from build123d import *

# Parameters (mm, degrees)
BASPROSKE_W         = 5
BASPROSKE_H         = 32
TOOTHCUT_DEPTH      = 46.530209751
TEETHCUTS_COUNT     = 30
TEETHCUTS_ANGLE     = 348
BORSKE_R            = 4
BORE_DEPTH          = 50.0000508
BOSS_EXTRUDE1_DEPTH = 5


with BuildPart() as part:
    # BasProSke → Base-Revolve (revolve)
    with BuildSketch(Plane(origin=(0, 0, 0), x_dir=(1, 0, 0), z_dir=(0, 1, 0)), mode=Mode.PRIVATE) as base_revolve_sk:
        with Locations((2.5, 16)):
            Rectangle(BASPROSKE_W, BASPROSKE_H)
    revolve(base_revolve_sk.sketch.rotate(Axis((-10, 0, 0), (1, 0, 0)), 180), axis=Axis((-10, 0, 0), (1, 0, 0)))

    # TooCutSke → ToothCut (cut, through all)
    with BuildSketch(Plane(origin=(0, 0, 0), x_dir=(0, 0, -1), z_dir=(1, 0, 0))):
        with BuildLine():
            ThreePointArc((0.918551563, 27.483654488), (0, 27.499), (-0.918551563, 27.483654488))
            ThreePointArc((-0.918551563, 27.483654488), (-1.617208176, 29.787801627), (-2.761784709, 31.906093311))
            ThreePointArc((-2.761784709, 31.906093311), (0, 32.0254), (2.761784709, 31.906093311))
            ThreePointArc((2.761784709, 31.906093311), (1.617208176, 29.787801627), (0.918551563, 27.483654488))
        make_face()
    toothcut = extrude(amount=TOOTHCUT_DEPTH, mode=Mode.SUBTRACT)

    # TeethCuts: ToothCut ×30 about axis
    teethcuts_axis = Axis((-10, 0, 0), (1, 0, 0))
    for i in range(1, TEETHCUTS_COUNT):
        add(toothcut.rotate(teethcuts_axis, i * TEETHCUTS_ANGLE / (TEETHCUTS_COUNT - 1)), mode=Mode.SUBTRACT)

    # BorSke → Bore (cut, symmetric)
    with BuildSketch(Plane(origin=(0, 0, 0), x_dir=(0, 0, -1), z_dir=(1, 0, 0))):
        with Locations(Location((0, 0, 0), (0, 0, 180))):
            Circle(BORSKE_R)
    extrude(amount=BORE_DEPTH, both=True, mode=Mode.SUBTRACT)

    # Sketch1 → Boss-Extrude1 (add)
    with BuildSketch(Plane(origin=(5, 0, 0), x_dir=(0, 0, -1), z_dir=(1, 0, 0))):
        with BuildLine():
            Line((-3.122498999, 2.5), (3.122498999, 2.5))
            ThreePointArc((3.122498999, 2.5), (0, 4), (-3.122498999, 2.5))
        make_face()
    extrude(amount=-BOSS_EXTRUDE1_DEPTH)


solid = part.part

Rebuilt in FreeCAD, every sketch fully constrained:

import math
import FreeCAD as App
import Part
import Sketcher

V = App.Vector


def add_polygon(sketch, points):
    """Adds a closed chain of lines whose ends are joined by coincident constraints."""
    first, n = sketch.GeometryCount, len(points)
    for a, b in zip(points, points[1:] + points[:1]):
        sketch.addGeometry(Part.LineSegment(App.Vector(*a, 0), App.Vector(*b, 0)), False)
    for i in range(n):
        sketch.addConstraint(Sketcher.Constraint("Coincident", first + i, 2, first + (i + 1) % n, 1))

doc = App.newDocument("Part")
body = doc.addObject("PartDesign::Body", "Body")

# Sketch on XZ plane
sketch1 = body.newObject("Sketcher::SketchObject", "Sketch")
sketch1.AttachmentSupport = (doc.getObject("XZ_Plane"), [""])
sketch1.MapMode = "FlatFace"
add_polygon(sketch1, [(0, -32), (0, 0), (5, 0), (5, -32)])  # lines 0-3
sketch1.addConstraint([
    Sketcher.Constraint("Vertical", 0),
    Sketcher.Constraint("Horizontal", 1),
    Sketcher.Constraint("Vertical", 2),
    Sketcher.Constraint("Horizontal", 3),
    Sketcher.Constraint("Coincident", 0, 2, -1, 1),
    Sketcher.Constraint("DistanceX", 1, 1, 1, 2, 5.0),
    Sketcher.Constraint("DistanceY", 0, 1, 0, 2, 32.0),
])
revolution = body.newObject("PartDesign::Revolution", "Revolution")
revolution.Profile = sketch1
revolution.ReferenceAxis = (sketch1, ["H_Axis"])
revolution.Angle = 360

# Sketch on YZ plane
sketch2 = body.newObject("Sketcher::SketchObject", "Sketch001")
sketch2.AttachmentSupport = (doc.getObject("YZ_Plane"), [""])
sketch2.MapMode = "FlatFace"
sketch2.addGeometry([
    Part.ArcOfCircle(Part.Circle(V(0, 0, 0), V(0, 0, 1), 27.499), math.radians(-1.914212), math.radians(1.914212)),
    Part.ArcOfCircle(Part.Circle(V(25.171243, -12.693642, 0), V(0, 0, 1), 12), math.radians(55.858574), math.radians(78.889547)),
    Part.ArcOfCircle(Part.Circle(V(0, 0, 0), V(0, 0, 1), 32.0254), math.radians(-4.947179), math.radians(4.947179)),
    Part.ArcOfCircle(Part.Circle(V(25.171243, 12.693642, 0), V(0, 0, 1), 12), math.radians(-78.889547), math.radians(-55.858574)),
], False)
sketch2.addConstraint([
    Sketcher.Constraint("Coincident", 0, 1, 1, 2),
    Sketcher.Constraint("Coincident", 1, 1, 2, 1),
    Sketcher.Constraint("Coincident", 2, 2, 3, 2),
    Sketcher.Constraint("Coincident", 3, 1, 0, 2),
    Sketcher.Constraint("Coincident", 0, 3, -1, 1),
    Sketcher.Constraint("Coincident", 2, 3, -1, 1),
    Sketcher.Constraint("Equal", 1, 3),
    Sketcher.Constraint("Symmetric", 1, 3, 3, 3, -1),
    Sketcher.Constraint("Radius", 1, 12.0),
    Sketcher.Constraint("Radius", 0, 27.499),
    Sketcher.Constraint("Radius", 2, 32.0254),
    Sketcher.Constraint("DistanceY", 1, 3, -1, 1, 12.693642),
    Sketcher.Constraint("DistanceY", 0, 1, -1, 1, 0.918552),
])
pocket1 = body.newObject("PartDesign::Pocket", "Pocket")
pocket1.Profile = sketch2
pocket1.Type = "ThroughAll"
pocket1.Reversed = True
doc.recompute()

polarpattern = body.newObject("PartDesign::PolarPattern", "PolarPattern")
polarpattern.Originals = [pocket1]
polarpattern.Axis = (doc.getObject("X_Axis"), [""])
polarpattern.Angle = 360
polarpattern.Occurrences = 30
body.Tip = polarpattern

# Sketch on YZ plane
sketch3 = body.newObject("Sketcher::SketchObject", "Sketch002")
sketch3.AttachmentSupport = (doc.getObject("YZ_Plane"), [""])
sketch3.MapMode = "FlatFace"
sketch3.addGeometry(Part.Circle(V(0, 0, 0), V(0, 0, 1), 4), False)
sketch3.addConstraint([
    Sketcher.Constraint("Coincident", 0, 3, -1, 1),
    Sketcher.Constraint("Diameter", 0, 8.0),
])
pocket2 = body.newObject("PartDesign::Pocket", "Pocket001")
pocket2.Profile = sketch3
pocket2.Length = 100.000102
pocket2.Midplane = True

# Sketch on YZ plane
sketch4 = body.newObject("Sketcher::SketchObject", "Sketch003")
sketch4.AttachmentSupport = (doc.getObject("YZ_Plane"), [""])
sketch4.MapMode = "FlatFace"
sketch4.AttachmentOffset = App.Placement(V(0, 0, 5), App.Rotation())
sketch4.addGeometry([
    Part.LineSegment(V(2.5, 3.122499, 0), V(2.5, -3.122499, 0)),
    Part.ArcOfCircle(Part.Circle(V(0, 0, 0), V(0, 0, 1), 4), math.radians(-51.317813), math.radians(51.317813)),
], False)
sketch4.addConstraint([
    Sketcher.Constraint("Coincident", 0, 1, 1, 2),
    Sketcher.Constraint("Coincident", 1, 1, 0, 2),
    Sketcher.Constraint("Vertical", 0),
    Sketcher.Constraint("Coincident", 1, 3, -1, 1),
    Sketcher.Constraint("Radius", 1, 4.0),
    Sketcher.Constraint("DistanceX", -1, 1, 0, 1, 2.5),
])
pad1 = body.newObject("PartDesign::Pad", "Pad")
pad1.Profile = sketch4
pad1.Length = 5
pad1.Reversed = True

doc.recompute()
